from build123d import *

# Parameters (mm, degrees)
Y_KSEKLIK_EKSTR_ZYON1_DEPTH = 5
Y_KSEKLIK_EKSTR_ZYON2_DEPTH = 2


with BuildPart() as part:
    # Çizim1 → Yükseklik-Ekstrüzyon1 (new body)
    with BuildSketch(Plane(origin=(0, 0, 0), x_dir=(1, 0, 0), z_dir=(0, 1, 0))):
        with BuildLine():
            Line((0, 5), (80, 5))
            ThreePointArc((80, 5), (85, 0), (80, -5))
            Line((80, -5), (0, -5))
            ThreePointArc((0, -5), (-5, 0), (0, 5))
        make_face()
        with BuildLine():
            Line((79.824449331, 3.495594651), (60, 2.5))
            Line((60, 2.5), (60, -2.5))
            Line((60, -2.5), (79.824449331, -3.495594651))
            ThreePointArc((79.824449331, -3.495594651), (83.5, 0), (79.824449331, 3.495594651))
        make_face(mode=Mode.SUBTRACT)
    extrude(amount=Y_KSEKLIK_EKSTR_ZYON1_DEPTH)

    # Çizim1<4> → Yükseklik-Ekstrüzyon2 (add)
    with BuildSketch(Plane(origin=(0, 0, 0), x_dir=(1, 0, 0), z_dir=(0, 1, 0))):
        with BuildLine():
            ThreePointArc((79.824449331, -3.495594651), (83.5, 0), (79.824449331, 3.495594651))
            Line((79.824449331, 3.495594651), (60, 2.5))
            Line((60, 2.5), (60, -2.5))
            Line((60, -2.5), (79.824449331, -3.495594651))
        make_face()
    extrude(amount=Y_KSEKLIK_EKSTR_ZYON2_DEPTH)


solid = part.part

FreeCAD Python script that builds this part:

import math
import FreeCAD as App
import Part
import Sketcher
from FreeCAD import Vector

doc = App.newDocument("Part")
body = doc.addObject("PartDesign::Body", "Body")

# Sketch on XZ plane
sketch1 = doc.addObject("Sketcher::SketchObject", "Sketch")
body.addObject(sketch1)
sketch1.AttachmentSupport = (doc.XZ_Plane, [""])
sketch1.MapMode = "FlatFace"
sketch1.addGeometry(Part.LineSegment(Vector(80, -5, 0), Vector(0, -5, 0)), False)
sketch1.addGeometry(Part.ArcOfCircle(Part.Circle(Vector(0, 0, 0), Vector(0, 0, 1), 5), math.radians(90), math.radians(270)), False)
sketch1.addGeometry(Part.LineSegment(Vector(0, 5, 0), Vector(80, 5, 0)), False)
sketch1.addGeometry(Part.ArcOfCircle(Part.Circle(Vector(80, 0, 0), Vector(0, 0, 1), 5), math.radians(-90), math.radians(90)), False)
sketch1.addGeometry(Part.ArcOfCircle(Part.Circle(Vector(80, 0, 0), Vector(0, 0, 1), 3.5), math.radians(-93), math.radians(93)), False)
sketch1.addGeometry(Part.LineSegment(Vector(79.8, 3.5, 0), Vector(60, 2.5, 0)), False)
sketch1.addGeometry(Part.LineSegment(Vector(60, 2.5, 0), Vector(60, -2.5, 0)), False)
sketch1.addGeometry(Part.LineSegment(Vector(60, -2.5, 0), Vector(79.8, -3.5, 0)), False)
sketch1.addConstraint(Sketcher.Constraint("Tangent", 0, 2, 1, 2))
sketch1.addConstraint(Sketcher.Constraint("Tangent", 1, 1, 2, 1))
sketch1.addConstraint(Sketcher.Constraint("Tangent", 2, 2, 3, 2))
sketch1.addConstraint(Sketcher.Constraint("Tangent", 3, 1, 0, 1))
sketch1.addConstraint(Sketcher.Constraint("Tangent", 4, 2, 5, 1))
sketch1.addConstraint(Sketcher.Constraint("Coincident", 5, 2, 6, 1))
sketch1.addConstraint(Sketcher.Constraint("Coincident", 6, 2, 7, 1))
sketch1.addConstraint(Sketcher.Constraint("Tangent", 7, 2, 4, 1))
sketch1.addConstraint(Sketcher.Constraint("Horizontal", 0))
sketch1.addConstraint(Sketcher.Constraint("Horizontal", 2))
sketch1.addConstraint(Sketcher.Constraint("Vertical", 6))
sketch1.addConstraint(Sketcher.Constraint("Coincident", 1, 3, -1, 1))
sketch1.addConstraint(Sketcher.Constraint("Coincident", 4, 3, 3, 3))
sketch1.addConstraint(Sketcher.Constraint("Vertical", 4, 2, 7, 2))
sketch1.addConstraint(Sketcher.Constraint("Radius", 1, 5.0))
sketch1.addConstraint(Sketcher.Constraint("Radius", 4, 3.5))
sketch1.addConstraint(Sketcher.Constraint("DistanceX", 0, 2, 0, 1, 80.0))
sketch1.addConstraint(Sketcher.Constraint("DistanceY", 6, 2, 6, 1, 5.0))
sketch1.addConstraint(Sketcher.Constraint("DistanceX", -1, 1, 5, 2, 60.0))
pad1 = doc.addObject("PartDesign::Pad", "Pad")
body.addObject(pad1)
pad1.Profile = sketch1
pad1.Length = 5
pad1.Reversed = True

# Sketch on XZ plane
sketch2 = doc.addObject("Sketcher::SketchObject", "Sketch001")
body.addObject(sketch2)
sketch2.AttachmentSupport = (doc.XZ_Plane, [""])
sketch2.MapMode = "FlatFace"
sketch2.addGeometry(Part.ArcOfCircle(Part.Circle(Vector(80, 0, 0), Vector(0, 0, 1), 3.5), math.radians(-93), math.radians(93)), False)
sketch2.addGeometry(Part.LineSegment(Vector(79.8, -3.5, 0), Vector(60, -2.5, 0)), False)
sketch2.addGeometry(Part.LineSegment(Vector(60, -2.5, 0), Vector(60, 2.5, 0)), False)
sketch2.addGeometry(Part.LineSegment(Vector(60, 2.5, 0), Vector(79.8, 3.5, 0)), False)
sketch2.addConstraint(Sketcher.Constraint("Tangent", 0, 1, 1, 1))
sketch2.addConstraint(Sketcher.Constraint("Coincident", 1, 2, 2, 1))
sketch2.addConstraint(Sketcher.Constraint("Coincident", 2, 2, 3, 1))
sketch2.addConstraint(Sketcher.Constraint("Tangent", 3, 2, 0, 2))
sketch2.addConstraint(Sketcher.Constraint("Vertical", 2))
sketch2.addConstraint(Sketcher.Constraint("Symmetric", 0, 1, 3, 2, -1))
sketch2.addConstraint(Sketcher.Constraint("Radius", 0, 3.5))
sketch2.addConstraint(Sketcher.Constraint("DistanceY", 2, 1, 2, 2, 5.0))
sketch2.addConstraint(Sketcher.Constraint("DistanceX", -1, 1, 0, 3, 80.0))
sketch2.addConstraint(Sketcher.Constraint("DistanceX", -1, 1, 1, 2, 60.0))
pad2 = doc.addObject("PartDesign::Pad", "Pad001")
body.addObject(pad2)
pad2.Profile = sketch2
pad2.Length = 2
pad2.Reversed = True

doc.recompute()
